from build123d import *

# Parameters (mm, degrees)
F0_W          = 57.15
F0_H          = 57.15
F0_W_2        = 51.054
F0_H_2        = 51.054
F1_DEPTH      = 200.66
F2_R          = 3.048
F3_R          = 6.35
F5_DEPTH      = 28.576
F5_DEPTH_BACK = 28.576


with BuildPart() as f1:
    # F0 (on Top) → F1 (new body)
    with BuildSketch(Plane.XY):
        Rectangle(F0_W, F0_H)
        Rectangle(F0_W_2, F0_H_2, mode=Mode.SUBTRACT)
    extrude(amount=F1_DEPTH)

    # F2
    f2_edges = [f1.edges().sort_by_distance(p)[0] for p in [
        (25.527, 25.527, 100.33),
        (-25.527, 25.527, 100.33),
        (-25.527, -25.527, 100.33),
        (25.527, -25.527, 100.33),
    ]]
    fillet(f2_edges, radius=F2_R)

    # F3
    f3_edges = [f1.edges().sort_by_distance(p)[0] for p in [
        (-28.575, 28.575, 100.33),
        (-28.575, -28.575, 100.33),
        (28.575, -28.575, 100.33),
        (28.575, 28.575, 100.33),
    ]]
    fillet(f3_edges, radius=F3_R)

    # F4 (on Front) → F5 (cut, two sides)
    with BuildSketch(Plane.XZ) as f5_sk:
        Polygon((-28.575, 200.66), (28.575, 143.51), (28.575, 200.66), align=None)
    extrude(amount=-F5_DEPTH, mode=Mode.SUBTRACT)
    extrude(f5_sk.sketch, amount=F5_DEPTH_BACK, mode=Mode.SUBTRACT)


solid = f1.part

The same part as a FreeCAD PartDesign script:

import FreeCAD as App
import Part
import Sketcher
from FreeCAD import Vector
Q = App.Units.Quantity


def edges_at(feature, points):
    """Names of the edges that pass closest to the given points."""
    edges = feature.Shape.Edges
    near = lambda p: min(range(len(edges)), key=lambda i: edges[i].distToShape(Part.Vertex(*p))[0])
    return sorted({f"Edge{near(p) + 1}" for p in points})


def add_polygon(sketch, points):
    """Adds a closed chain of lines whose ends are joined by coincident constraints."""
    first, n = sketch.GeometryCount, len(points)
    for a, b in zip(points, points[1:] + points[:1]):
        sketch.addGeometry(Part.LineSegment(App.Vector(*a, 0), App.Vector(*b, 0)), False)
    for i in range(n):
        sketch.addConstraint(Sketcher.Constraint("Coincident", first + i, 2, first + (i + 1) % n, 1))

doc = App.newDocument("Part")
params = doc.addObject("Spreadsheet::Sheet", "Params")
for row, (alias, value) in enumerate([
    ("sketch1_width", "2.25 in"),
    ("sketch1_width2", "2.01 in"),
    ("pad1_length", "7.9 in"),
    ("fillet_radius", "0.12 in"),
    ("fillet2_radius", "0.25 in"),
    ("sketch2_width", "2.25 in"),
], start=1):
    params.set(f"A{row}", alias)
    params.set(f"B{row}", "=" + value)
    params.setAlias(f"B{row}", alias)

body = doc.addObject("PartDesign::Body", "Body")

sketch1 = doc.addObject("Sketcher::SketchObject", "Sketch")
body.addObject(sketch1)
sketch1.AttachmentSupport = (doc.XY_Plane, [""])
sketch1.MapMode = "FlatFace"
add_polygon(sketch1, [(-29, 29), (-29, -29), (29, -29), (29, 29)])
add_polygon(sketch1, [(26, -26), (-26, -26), (-26, 26), (26, 26)])
sketch1.addConstraint([
    Sketcher.Constraint("Vertical", 0),
    Sketcher.Constraint("Horizontal", 1),
    Sketcher.Constraint("Vertical", 2),
    Sketcher.Constraint("Horizontal", 3),
    Sketcher.Constraint("Horizontal", 4),
    Sketcher.Constraint("Vertical", 5),
    Sketcher.Constraint("Horizontal", 6),
    Sketcher.Constraint("Vertical", 7),
    Sketcher.Constraint("Symmetric", 0, 2, 2, 2, -1, 1),
    Sketcher.Constraint("Symmetric", 4, 2, 6, 2, -1, 1),
    Sketcher.Constraint("Equal", 3, 0),
    Sketcher.Constraint("Equal", 6, 5),
    Sketcher.Constraint("DistanceX", 1, 1, 1, 2, Q("2.25 in")),
    Sketcher.Constraint("DistanceX", 4, 2, 4, 1, Q("2.01 in")),
])
sketch1.setExpression("Constraints[20]", "Params.sketch1_width")
sketch1.setExpression("Constraints[21]", "Params.sketch1_width2")
pad1 = doc.addObject("PartDesign::Pad", "Pad")
body.addObject(pad1)
pad1.Profile = sketch1
pad1.setExpression("Length", "Params.pad1_length")
doc.recompute()

fillet = doc.addObject("PartDesign::Fillet", "Fillet")
body.addObject(fillet)
fillet.Base = (pad1, edges_at(pad1, [
    (25.527, 25.527, 100.33),
    (-25.527, 25.527, 100.33),
    (-25.527, -25.527, 100.33),
    (25.527, -25.527, 100.33),
]))
fillet.setExpression("Radius", "Params.fillet_radius")
doc.recompute()

fillet2 = doc.addObject("PartDesign::Fillet", "Fillet001")
body.addObject(fillet2)
fillet2.Base = (fillet, edges_at(fillet, [
    (-28.575, 28.575, 100.33),
    (-28.575, -28.575, 100.33),
    (28.575, -28.575, 100.33),
    (28.575, 28.575, 100.33),
]))
fillet2.setExpression("Radius", "Params.fillet2_radius")

sketch2 = doc.addObject("Sketcher::SketchObject", "Sketch001")
body.addObject(sketch2)
sketch2.AttachmentSupport = (doc.XZ_Plane, [""])
sketch2.MapMode = "FlatFace"
add_polygon(sketch2, [(-29, 201), (29, 144), (29, 201)])
sketch2.addConstraint([
    Sketcher.Constraint("Vertical", 1),
    Sketcher.Constraint("Horizontal", 2),
    Sketcher.Constraint("Equal", 2, 1),
    Sketcher.Constraint("DistanceX", 2, 2, 2, 1, Q("2.25 in")),
    Sketcher.Constraint("DistanceY", -1, 1, 1, 2, Q("7.9 in")),
    Sketcher.Constraint("DistanceX", -1, 1, 0, 2, Q("1.125 in")),
])
sketch2.setExpression("Constraints[6]", "Params.sketch2_width")
pocket1 = doc.addObject("PartDesign::Pocket", "Pocket")
body.addObject(pocket1)
pocket1.Profile = sketch2
pocket1.Type = "ThroughAll"
pocket1.Midplane = True

doc.recompute()
